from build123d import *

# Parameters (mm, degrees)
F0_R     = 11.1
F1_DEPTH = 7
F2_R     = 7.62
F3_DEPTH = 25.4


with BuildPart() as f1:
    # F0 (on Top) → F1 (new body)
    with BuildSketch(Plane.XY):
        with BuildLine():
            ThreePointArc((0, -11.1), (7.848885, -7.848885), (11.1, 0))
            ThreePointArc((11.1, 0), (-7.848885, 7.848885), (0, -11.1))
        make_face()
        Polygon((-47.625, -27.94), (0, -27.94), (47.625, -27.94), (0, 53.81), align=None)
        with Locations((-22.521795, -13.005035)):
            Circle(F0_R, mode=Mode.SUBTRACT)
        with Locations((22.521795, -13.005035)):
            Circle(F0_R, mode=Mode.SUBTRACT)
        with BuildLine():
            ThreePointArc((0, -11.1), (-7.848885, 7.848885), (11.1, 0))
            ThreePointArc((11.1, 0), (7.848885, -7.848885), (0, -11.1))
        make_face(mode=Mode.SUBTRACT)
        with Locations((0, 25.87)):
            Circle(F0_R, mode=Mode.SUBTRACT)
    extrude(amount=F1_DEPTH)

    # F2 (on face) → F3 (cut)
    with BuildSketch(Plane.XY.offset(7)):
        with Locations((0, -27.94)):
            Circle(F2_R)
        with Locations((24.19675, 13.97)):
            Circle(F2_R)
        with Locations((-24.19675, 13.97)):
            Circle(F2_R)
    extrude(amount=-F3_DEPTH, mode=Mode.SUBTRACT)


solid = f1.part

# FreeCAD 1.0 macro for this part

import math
import FreeCAD as App
import Part
import Sketcher

V = App.Vector
Q = App.Units.Quantity

doc = App.newDocument("Part")
body = doc.addObject("PartDesign::Body", "Body")

sketch1 = body.newObject("Sketcher::SketchObject", "Sketch")
sketch1.AttachmentSupport = (doc.getObject("XY_Plane"), [""])
sketch1.MapMode = "FlatFace"
sketch1.addGeometry([
    Part.LineSegment(V(-48, -28, 0), V(48, -28, 0)),
    Part.LineSegment(V(48, -28, 0), V(0, 54, 0)),
    Part.LineSegment(V(0, 54, 0), V(-48, -28, 0)),
    Part.Circle(V(-23, -13, 0), V(0, 0, 1), 11),
    Part.Circle(V(23, -13, 0), V(0, 0, 1), 11),
    Part.ArcOfCircle(Part.Circle(V(0, 0, 0), V(0, 0, 1), 11), math.radians(-90), math.radians(0)),
    Part.ArcOfCircle(Part.Circle(V(0, 0, 0), V(0, 0, 1), 11), math.radians(0), math.radians(270)),
    Part.Circle(V(0, 26, 0), V(0, 0, 1), 11),
], False)
sketch1.addConstraint([
    Sketcher.Constraint("Coincident", 0, 2, 1, 1),
    Sketcher.Constraint("Coincident", 1, 2, 2, 1),
    Sketcher.Constraint("Coincident", 2, 2, 0, 1),
    Sketcher.Constraint("Tangent", 5, 1, 6, 2),
    Sketcher.Constraint("Coincident", 6, 1, 5, 2),
    Sketcher.Constraint("Horizontal", 0),
    Sketcher.Constraint("Coincident", 5, 3, -1, 1),
    Sketcher.Constraint("Equal", 3, 4),
    Sketcher.Constraint("Equal", 4, 5),
    Sketcher.Constraint("Equal", 6, 7),
    Sketcher.Constraint("Symmetric", 3, 3, 4, 3, -2),
    Sketcher.Constraint("PointOnObject", 7, 3, -2),
    Sketcher.Constraint("PointOnObject", 1, 2, -2),
    Sketcher.Constraint("PointOnObject", 5, 1, -2),
    Sketcher.Constraint("PointOnObject", 6, 1, -1),
    Sketcher.Constraint("Equal", 1, 2),
    Sketcher.Constraint("DistanceX", 0, 1, 0, 2, Q("3.75 in")),
    Sketcher.Constraint("DistanceY", 0, 2, -1, 1, Q("1.1 in")),
    Sketcher.Constraint("DistanceY", 7, 3, 1, 2, Q("1.1 in")),
    Sketcher.Constraint("Diameter", 3, 22.2),
    Sketcher.Constraint("Distance", 1, 94.610798),
    Sketcher.Constraint("DistanceX", 3, 3, 4, 3, 45.04359),
    Sketcher.Constraint("DistanceY", 3, 3, -1, 1, 13.005035),
])
pad1 = body.newObject("PartDesign::Pad", "Pad")
pad1.Profile = sketch1
pad1.Length = 7

sketch2 = body.newObject("Sketcher::SketchObject", "Sketch001")
sketch2.AttachmentSupport = (doc.getObject("XY_Plane"), [""])
sketch2.MapMode = "FlatFace"
sketch2.AttachmentOffset = App.Placement(V(0, 0, 7), App.Rotation())
sketch2.addGeometry([
    Part.Circle(V(0, -28, 0), V(0, 0, 1), 8),
    Part.Circle(V(24, 14, 0), V(0, 0, 1), 8),
    Part.Circle(V(-24, 14, 0), V(0, 0, 1), 8),
], False)
sketch2.addConstraint([
    Sketcher.Constraint("Equal", 0, 1),
    Sketcher.Constraint("Equal", 1, 2),
    Sketcher.Constraint("Symmetric", 1, 3, 2, 3, -2),
    Sketcher.Constraint("PointOnObject", 0, 3, -2),
    Sketcher.Constraint("Diameter", 0, Q("0.6 in")),
    Sketcher.Constraint("DistanceY", 0, 3, -1, 1, Q("1.1 in")),
    Sketcher.Constraint("DistanceY", -1, 1, 1, 3, Q("0.55 in")),
    Sketcher.Constraint("DistanceX", 2, 3, 1, 3, 48.3935),
])
pocket1 = body.newObject("PartDesign::Pocket", "Pocket")
pocket1.Profile = sketch2
pocket1.Length = Q("1 in")

doc.recompute()
